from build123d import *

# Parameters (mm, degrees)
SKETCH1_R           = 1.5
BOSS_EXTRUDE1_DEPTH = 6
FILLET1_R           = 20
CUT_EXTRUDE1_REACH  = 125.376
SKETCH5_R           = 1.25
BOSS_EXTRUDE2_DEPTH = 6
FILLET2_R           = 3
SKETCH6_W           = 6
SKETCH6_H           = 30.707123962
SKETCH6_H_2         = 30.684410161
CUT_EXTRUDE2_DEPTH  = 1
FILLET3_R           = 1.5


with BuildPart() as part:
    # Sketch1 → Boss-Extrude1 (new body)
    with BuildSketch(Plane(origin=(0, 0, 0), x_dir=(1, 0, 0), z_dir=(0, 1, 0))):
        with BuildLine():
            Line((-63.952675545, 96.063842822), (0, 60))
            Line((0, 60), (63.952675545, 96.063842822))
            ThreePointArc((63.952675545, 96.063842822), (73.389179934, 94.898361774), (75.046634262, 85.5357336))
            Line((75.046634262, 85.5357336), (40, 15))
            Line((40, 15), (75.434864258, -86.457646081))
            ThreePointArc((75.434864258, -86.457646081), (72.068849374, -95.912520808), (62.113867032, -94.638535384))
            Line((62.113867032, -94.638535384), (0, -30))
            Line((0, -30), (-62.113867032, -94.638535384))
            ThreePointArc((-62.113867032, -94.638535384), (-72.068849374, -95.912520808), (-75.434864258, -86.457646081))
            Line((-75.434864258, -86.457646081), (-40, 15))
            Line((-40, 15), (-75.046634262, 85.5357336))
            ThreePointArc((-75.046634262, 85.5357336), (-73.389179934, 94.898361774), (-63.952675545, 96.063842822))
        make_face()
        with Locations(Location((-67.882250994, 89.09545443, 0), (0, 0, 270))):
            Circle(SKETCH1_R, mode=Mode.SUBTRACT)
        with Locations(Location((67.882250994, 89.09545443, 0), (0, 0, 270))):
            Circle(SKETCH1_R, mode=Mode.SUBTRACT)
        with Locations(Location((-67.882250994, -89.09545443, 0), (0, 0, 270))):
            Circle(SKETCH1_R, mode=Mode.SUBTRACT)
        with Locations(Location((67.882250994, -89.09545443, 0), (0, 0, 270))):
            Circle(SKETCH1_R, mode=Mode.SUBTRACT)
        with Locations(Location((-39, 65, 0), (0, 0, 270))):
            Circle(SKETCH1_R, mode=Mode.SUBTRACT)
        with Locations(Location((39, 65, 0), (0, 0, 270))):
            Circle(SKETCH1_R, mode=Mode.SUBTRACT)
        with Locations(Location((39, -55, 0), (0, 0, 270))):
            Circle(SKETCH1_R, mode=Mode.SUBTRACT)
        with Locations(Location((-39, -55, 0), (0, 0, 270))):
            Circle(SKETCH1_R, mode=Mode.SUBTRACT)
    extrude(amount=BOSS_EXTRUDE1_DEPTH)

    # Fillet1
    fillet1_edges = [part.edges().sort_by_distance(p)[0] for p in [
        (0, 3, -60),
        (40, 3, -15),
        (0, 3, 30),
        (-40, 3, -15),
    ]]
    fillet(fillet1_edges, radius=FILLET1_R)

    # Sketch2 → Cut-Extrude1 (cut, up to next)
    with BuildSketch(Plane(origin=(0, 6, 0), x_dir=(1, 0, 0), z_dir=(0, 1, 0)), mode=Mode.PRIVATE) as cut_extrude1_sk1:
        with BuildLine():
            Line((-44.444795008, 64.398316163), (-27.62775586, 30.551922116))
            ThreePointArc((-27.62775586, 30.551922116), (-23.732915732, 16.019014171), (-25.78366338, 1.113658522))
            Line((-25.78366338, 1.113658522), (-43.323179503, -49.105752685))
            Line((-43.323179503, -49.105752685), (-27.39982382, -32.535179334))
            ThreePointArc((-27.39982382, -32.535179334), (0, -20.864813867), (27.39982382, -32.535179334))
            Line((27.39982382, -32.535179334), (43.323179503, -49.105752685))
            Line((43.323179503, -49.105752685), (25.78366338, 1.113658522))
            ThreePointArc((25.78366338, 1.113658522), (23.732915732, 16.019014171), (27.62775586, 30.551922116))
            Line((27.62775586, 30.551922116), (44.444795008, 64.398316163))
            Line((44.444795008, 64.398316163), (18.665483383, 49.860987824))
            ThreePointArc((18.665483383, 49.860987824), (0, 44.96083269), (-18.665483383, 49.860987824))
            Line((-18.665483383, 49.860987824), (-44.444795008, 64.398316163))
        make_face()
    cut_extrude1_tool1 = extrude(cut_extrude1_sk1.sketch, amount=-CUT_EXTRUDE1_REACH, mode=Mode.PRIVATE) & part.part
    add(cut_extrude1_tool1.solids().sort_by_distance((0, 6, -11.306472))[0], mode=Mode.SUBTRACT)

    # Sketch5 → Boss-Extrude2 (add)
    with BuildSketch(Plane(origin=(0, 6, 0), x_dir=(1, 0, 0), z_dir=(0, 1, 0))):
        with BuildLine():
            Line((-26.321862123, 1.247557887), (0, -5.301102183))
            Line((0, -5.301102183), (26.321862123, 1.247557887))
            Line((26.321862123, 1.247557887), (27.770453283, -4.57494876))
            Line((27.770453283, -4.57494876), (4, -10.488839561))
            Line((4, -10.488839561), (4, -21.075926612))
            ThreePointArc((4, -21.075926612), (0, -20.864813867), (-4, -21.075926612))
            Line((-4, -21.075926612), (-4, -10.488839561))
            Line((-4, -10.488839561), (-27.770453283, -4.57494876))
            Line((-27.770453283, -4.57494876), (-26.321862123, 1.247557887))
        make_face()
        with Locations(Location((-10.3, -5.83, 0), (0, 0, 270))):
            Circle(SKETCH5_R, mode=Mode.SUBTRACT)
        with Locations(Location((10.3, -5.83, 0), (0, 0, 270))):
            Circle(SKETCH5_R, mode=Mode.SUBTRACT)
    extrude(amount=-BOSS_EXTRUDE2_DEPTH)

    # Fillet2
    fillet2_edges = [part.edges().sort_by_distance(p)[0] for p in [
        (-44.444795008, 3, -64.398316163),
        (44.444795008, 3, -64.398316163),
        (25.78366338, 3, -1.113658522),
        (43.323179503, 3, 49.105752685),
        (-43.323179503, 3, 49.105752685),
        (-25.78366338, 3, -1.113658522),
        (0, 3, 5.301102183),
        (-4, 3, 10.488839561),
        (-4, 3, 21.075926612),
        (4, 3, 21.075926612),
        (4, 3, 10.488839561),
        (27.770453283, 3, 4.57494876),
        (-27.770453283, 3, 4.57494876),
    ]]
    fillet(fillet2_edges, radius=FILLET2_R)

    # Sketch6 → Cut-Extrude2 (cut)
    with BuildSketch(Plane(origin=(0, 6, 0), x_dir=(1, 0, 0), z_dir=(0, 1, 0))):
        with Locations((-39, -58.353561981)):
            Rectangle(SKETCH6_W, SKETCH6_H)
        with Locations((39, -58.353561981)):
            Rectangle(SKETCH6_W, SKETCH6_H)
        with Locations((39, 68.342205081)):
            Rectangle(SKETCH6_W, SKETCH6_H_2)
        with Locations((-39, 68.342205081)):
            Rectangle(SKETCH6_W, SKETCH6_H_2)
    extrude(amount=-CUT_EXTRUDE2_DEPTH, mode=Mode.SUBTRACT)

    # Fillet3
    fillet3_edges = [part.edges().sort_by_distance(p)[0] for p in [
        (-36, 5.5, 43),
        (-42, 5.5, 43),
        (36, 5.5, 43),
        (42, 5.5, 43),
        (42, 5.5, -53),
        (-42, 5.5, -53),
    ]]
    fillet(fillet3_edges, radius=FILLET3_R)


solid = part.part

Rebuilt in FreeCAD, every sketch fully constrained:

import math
import FreeCAD as App
import Part
import Sketcher

V = App.Vector
Q = App.Units.Quantity


def edges_at(feature, points):
    """Names of the edges that pass closest to the given points."""
    edges = feature.Shape.Edges
    near = lambda p: min(range(len(edges)), key=lambda i: edges[i].distToShape(Part.Vertex(*p))[0])
    return sorted({f"Edge{near(p) + 1}" for p in points})

doc = App.newDocument("Part")
body = doc.addObject("PartDesign::Body", "Body")

sketch1 = body.newObject("Sketcher::SketchObject", "Sketch")
sketch1.AttachmentSupport = (doc.getObject("XZ_Plane"), [""])
sketch1.MapMode = "FlatFace"
sketch1.addGeometry([
    Part.LineSegment(V(0, -60, 0), V(-64, -96.1, 0)),
    Part.ArcOfCircle(Part.Circle(V(-67.9, -89.1, 0), V(0, 0, 1), 8), math.radians(154), math.radians(299)),
    Part.LineSegment(V(-75, -85.5, 0), V(-40, -15, 0)),
    Part.LineSegment(V(-40, -15, 0), V(-75.4, 86.5, 0)),
    Part.ArcOfCircle(Part.Circle(V(-67.9, 89.1, 0), V(0, 0, 1), 8), math.radians(44), math.radians(199)),
    Part.LineSegment(V(-62.1, 94.6, 0), V(0, 30, 0)),
    Part.LineSegment(V(0, 30, 0), V(62.1, 94.6, 0)),
    Part.ArcOfCircle(Part.Circle(V(67.9, 89.1, 0), V(0, 0, 1), 8), math.radians(-19), math.radians(136)),
    Part.LineSegment(V(75.4, 86.5, 0), V(40, -15, 0)),
    Part.LineSegment(V(40, -15, 0), V(75, -85.5, 0)),
    Part.ArcOfCircle(Part.Circle(V(67.9, -89.1, 0), V(0, 0, 1), 8), math.radians(-119), math.radians(26)),
    Part.LineSegment(V(64, -96.1, 0), V(0, -60, 0)),
    Part.Circle(V(67.9, 89.1, 0), V(0, 0, 1), 1.5),
    Part.Circle(V(39, 55, 0), V(0, 0, 1), 1.5),
    Part.Circle(V(-67.9, 89.1, 0), V(0, 0, 1), 1.5),
    Part.Circle(V(-39, 55, 0), V(0, 0, 1), 1.5),
    Part.Circle(V(39, -65, 0), V(0, 0, 1), 1.5),
    Part.Circle(V(67.9, -89.1, 0), V(0, 0, 1), 1.5),
    Part.Circle(V(-39, -65, 0), V(0, 0, 1), 1.5),
    Part.Circle(V(-67.9, -89.1, 0), V(0, 0, 1), 1.5),
], False)
sketch1.addConstraint([
    Sketcher.Constraint("Tangent", 0, 2, 1, 2),
    Sketcher.Constraint("Tangent", 1, 1, 2, 1),
    Sketcher.Constraint("Coincident", 2, 2, 3, 1),
    Sketcher.Constraint("Tangent", 3, 2, 4, 2),
    Sketcher.Constraint("Tangent", 4, 1, 5, 1),
    Sketcher.Constraint("Coincident", 5, 2, 6, 1),
    Sketcher.Constraint("Tangent", 6, 2, 7, 2),
    Sketcher.Constraint("Tangent", 7, 1, 8, 1),
    Sketcher.Constraint("Coincident", 8, 2, 9, 1),
    Sketcher.Constraint("Tangent", 9, 2, 10, 2),
    Sketcher.Constraint("Tangent", 10, 1, 11, 1),
    Sketcher.Constraint("Coincident", 11, 2, 0, 1),
    Sketcher.Constraint("Coincident", 12, 3, 7, 3),
    Sketcher.Constraint("Coincident", 14, 3, 4, 3),
    Sketcher.Constraint("Coincident", 17, 3, 10, 3),
    Sketcher.Constraint("Coincident", 19, 3, 1, 3),
    Sketcher.Constraint("Equal", 1, 4),
    Sketcher.Constraint("Equal", 4, 7),
    Sketcher.Constraint("Equal", 7, 10),
    Sketcher.Constraint("Equal", 12, 13),
    Sketcher.Constraint("Equal", 13, 14),
    Sketcher.Constraint("Equal", 14, 15),
    Sketcher.Constraint("Equal", 15, 16),
    Sketcher.Constraint("Equal", 16, 17),
    Sketcher.Constraint("Equal", 17, 18),
    Sketcher.Constraint("Equal", 18, 19),
    Sketcher.Constraint("Symmetric", 1, 3, 7, 3, -1, 1),
    Sketcher.Constraint("Symmetric", 4, 3, 10, 3, -1, 1),
    Sketcher.Constraint("Symmetric", 4, 3, 7, 3, -2),
    Sketcher.Constraint("Symmetric", 13, 3, 15, 3, -2),
    Sketcher.Constraint("Symmetric", 16, 3, 18, 3, -2),
    Sketcher.Constraint("Symmetric", 2, 2, 8, 2, -2),
    Sketcher.Constraint("PointOnObject", 5, 2, -2),
    Sketcher.Constraint("PointOnObject", 11, 2, -2),
    Sketcher.Constraint("Vertical", 13, 3, 16, 3),
    Sketcher.Constraint("Diameter", 12, Q("3 mm")),
    Sketcher.Constraint("Radius", 1, Q("8 mm")),
    Sketcher.Constraint("DistanceX", -1, 1, 13, 3, Q("39 mm")),
    Sketcher.Constraint("DistanceY", -1, 1, 13, 3, Q("55 mm")),
    Sketcher.Constraint("DistanceY", 16, 3, -1, 1, Q("65 mm")),
    Sketcher.Constraint("DistanceX", 2, 2, -1, 1, Q("40 mm")),
    Sketcher.Constraint("DistanceY", 2, 2, -1, 1, Q("15 mm")),
    Sketcher.Constraint("DistanceY", -1, 1, 5, 2, Q("30 mm")),
    Sketcher.Constraint("DistanceY", 11, 2, -1, 1, Q("60 mm")),
    Sketcher.Constraint("DistanceX", 4, 3, 7, 3, Q("135.764502 mm")),
    Sketcher.Constraint("Distance", 5, Q("89.645261 mm")),
])
pad1 = body.newObject("PartDesign::Pad", "Pad")
pad1.Profile = sketch1
pad1.Length = 6
pad1.Reversed = True
doc.recompute()

fillet = body.newObject("PartDesign::Fillet", "Fillet")
fillet.Base = (pad1, edges_at(pad1, [
    (0, 3, -60),
    (40, 3, -15),
    (0, 3, 30),
    (-40, 3, -15),
]))
fillet.Radius = 20

sketch2 = body.newObject("Sketcher::SketchObject", "Sketch001")
sketch2.AttachmentSupport = (doc.getObject("XZ_Plane"), [""])
sketch2.MapMode = "FlatFace"
sketch2.AttachmentOffset = App.Placement(V(0, 0, -6), App.Rotation())
sketch2.addGeometry([
    Part.LineSegment(V(-44, -64, 0), V(-28, -31, 0)),
    Part.ArcOfCircle(Part.Circle(V(-62, -14, 0), V(0, 0, 1), 38), math.radians(-26), math.radians(19)),
    Part.LineSegment(V(-26, -1, 0), V(-43, 49, 0)),
    Part.LineSegment(V(-43, 49, 0), V(-27, 33, 0)),
    Part.ArcOfCircle(Part.Circle(V(0, 59, 0), V(0, 0, 1), 38), math.radians(-136), math.radians(-44)),
    Part.LineSegment(V(27, 33, 0), V(43, 49, 0)),
    Part.LineSegment(V(43, 49, 0), V(26, -1, 0)),
    Part.ArcOfCircle(Part.Circle(V(62, -14, 0), V(0, 0, 1), 38), math.radians(161), math.radians(206)),
    Part.LineSegment(V(28, -31, 0), V(44, -64, 0)),
    Part.LineSegment(V(44, -64, 0), V(19, -50, 0)),
    Part.ArcOfCircle(Part.Circle(V(0, -83, 0), V(0, 0, 1), 38), math.radians(61), math.radians(119)),
    Part.LineSegment(V(-19, -50, 0), V(-44, -64, 0)),
], False)
sketch2.addConstraint([
    Sketcher.Constraint("Tangent", 0, 2, 1, 1),
    Sketcher.Constraint("Tangent", 1, 2, 2, 1),
    Sketcher.Constraint("Coincident", 2, 2, 3, 1),
    Sketcher.Constraint("Tangent", 3, 2, 4, 1),
    Sketcher.Constraint("Tangent", 4, 2, 5, 1),
    Sketcher.Constraint("Coincident", 5, 2, 6, 1),
    Sketcher.Constraint("Tangent", 6, 2, 7, 1),
    Sketcher.Constraint("Tangent", 7, 2, 8, 1),
    Sketcher.Constraint("Coincident", 8, 2, 9, 1),
    Sketcher.Constraint("Tangent", 9, 2, 10, 1),
    Sketcher.Constraint("Tangent", 10, 2, 11, 1),
    Sketcher.Constraint("Coincident", 11, 2, 0, 1),
    Sketcher.Constraint("Equal", 1, 4),
    Sketcher.Constraint("Equal", 4, 7),
    Sketcher.Constraint("Equal", 7, 10),
    Sketcher.Constraint("Symmetric", 1, 3, 7, 3, -2),
    Sketcher.Constraint("Symmetric", 3, 2, 4, 2, -2),
    Sketcher.Constraint("Symmetric", 9, 2, 10, 2, -2),
    Sketcher.Constraint("Horizontal", 2, 2, 5, 2),
    Sketcher.Constraint("Horizontal", 0, 2, 7, 2),
    Sketcher.Constraint("Radius", 1, Q("38 mm")),
    Sketcher.Constraint("DistanceY", 1, 3, 2, 2, Q("62.749001 mm")),
    Sketcher.Constraint("DistanceY", 0, 2, 3, 2, Q("63.087101 mm")),
    Sketcher.Constraint("Distance", 2, Q("53.194209 mm")),
    Sketcher.Constraint("DistanceY", 1, 3, -1, 1, Q("13.643248 mm")),
    Sketcher.Constraint("DistanceX", 2, 2, -1, 1, Q("43.32318 mm")),
    Sketcher.Constraint("DistanceY", -1, 1, 3, 2, Q("32.535179 mm")),
    Sketcher.Constraint("DistanceY", 10, 3, 0, 2, Q("52.408911 mm")),
    Sketcher.Constraint("DistanceX", 7, 2, 8, 2, Q("16.817039 mm")),
])
pocket1 = body.newObject("PartDesign::Pocket", "Pocket")
pocket1.Profile = sketch2
pocket1.Type = "UpToFirst"
pocket1.Reversed = True

sketch3 = body.newObject("Sketcher::SketchObject", "Sketch002")
sketch3.AttachmentSupport = (doc.getObject("XZ_Plane"), [""])
sketch3.MapMode = "FlatFace"
sketch3.AttachmentOffset = App.Placement(V(0, 0, -6), App.Rotation())
sketch3.addGeometry([
    Part.LineSegment(V(0, 5.3, 0), V(-26.3, -1.2, 0)),
    Part.LineSegment(V(-26.3, -1.2, 0), V(-27.8, 4.6, 0)),
    Part.LineSegment(V(-27.8, 4.6, 0), V(-4, 10.5, 0)),
    Part.LineSegment(V(-4, 10.5, 0), V(-4, 21.1, 0)),
    Part.ArcOfCircle(Part.Circle(V(0, 58.9, 0), V(0, 0, 1), 38), math.radians(-96.04), math.radians(-83.96)),
    Part.LineSegment(V(4, 21.1, 0), V(4, 10.5, 0)),
    Part.LineSegment(V(4, 10.5, 0), V(27.8, 4.6, 0)),
    Part.LineSegment(V(27.8, 4.6, 0), V(26.3, -1.2, 0)),
    Part.LineSegment(V(26.3, -1.2, 0), V(0, 5.3, 0)),
    Part.Circle(V(10.3, 5.8, 0), V(0, 0, 1), 1.2),
    Part.Circle(V(-10.3, 5.8, 0), V(0, 0, 1), 1.2),
], False)
sketch3.addConstraint([
    Sketcher.Constraint("Coincident", 0, 2, 1, 1),
    Sketcher.Constraint("Coincident", 1, 2, 2, 1),
    Sketcher.Constraint("Coincident", 2, 2, 3, 1),
    Sketcher.Constraint("Coincident", 3, 2, 4, 1),
    Sketcher.Constraint("Coincident", 4, 2, 5, 1),
    Sketcher.Constraint("Coincident", 5, 2, 6, 1),
    Sketcher.Constraint("Coincident", 6, 2, 7, 1),
    Sketcher.Constraint("Coincident", 7, 2, 8, 1),
    Sketcher.Constraint("Coincident", 8, 2, 0, 1),
    Sketcher.Constraint("Vertical", 3),
    Sketcher.Constraint("Vertical", 5),
    Sketcher.Constraint("Equal", 9, 10),
    Sketcher.Constraint("Symmetric", 9, 3, 10, 3, -2),
    Sketcher.Constraint("Symmetric", 3, 2, 4, 2, -2),
    Sketcher.Constraint("Symmetric", 1, 2, 6, 2, -2),
    Sketcher.Constraint("Symmetric", 0, 2, 7, 2, -2),
    Sketcher.Constraint("PointOnObject", 8, 2, -2),
    Sketcher.Constraint("Perpendicular", 0, 1),
    Sketcher.Constraint("Perpendicular", 1, 2),
    Sketcher.Constraint("Perpendicular", 6, 7),
    Sketcher.Constraint("Radius", 4, Q("38 mm")),
    Sketcher.Constraint("Diameter", 9, Q("2.5 mm")),
    Sketcher.Constraint("Distance", 1, Q("6 mm")),
    Sketcher.Constraint("DistanceX", 2, 2, -1, 1, Q("4 mm")),
    Sketcher.Constraint("DistanceX", -1, 1, 9, 3, Q("10.3 mm")),
    Sketcher.Constraint("DistanceY", -1, 1, 9, 3, Q("5.83 mm")),
    Sketcher.Constraint("Distance", 0, Q("27.124258 mm")),
    Sketcher.Constraint("DistanceY", 3, 1, 3, 2, Q("10.587087 mm")),
    Sketcher.Constraint("DistanceY", -1, 1, 1, 2, Q("4.574949 mm")),
    Sketcher.Constraint("DistanceY", -1, 1, 2, 2, Q("10.48884 mm")),
])
pad2 = body.newObject("PartDesign::Pad", "Pad001")
pad2.Profile = sketch3
pad2.Length = 6
doc.recompute()

fillet2 = body.newObject("PartDesign::Fillet", "Fillet001")
fillet2.Base = (pad2, edges_at(pad2, [
    (-44.445, 3, -64.398),
    (44.445, 3, -64.398),
    (25.784, 3, -1.114),
    (43.323, 3, 49.106),
    (-43.323, 3, 49.106),
    (-25.784, 3, -1.114),
    (0, 3, 5.301),
    (-4, 3, 10.489),
    (-4, 3, 21.076),
    (4, 3, 21.076),
    (4, 3, 10.489),
    (27.77, 3, 4.575),
    (-27.77, 3, 4.575),
]))
fillet2.Radius = 3

sketch4 = body.newObject("Sketcher::SketchObject", "Sketch003")
sketch4.AttachmentSupport = (doc.getObject("XZ_Plane"), [""])
sketch4.MapMode = "FlatFace"
sketch4.AttachmentOffset = App.Placement(V(0, 0, -6), App.Rotation())
sketch4.addGeometry([
    Part.LineSegment(V(-42, 43, 0), V(-42, 74, 0)),
    Part.LineSegment(V(-42, 74, 0), V(-36, 74, 0)),
    Part.LineSegment(V(-36, 74, 0), V(-36, 43, 0)),
    Part.LineSegment(V(-36, 43, 0), V(-42, 43, 0)),
    Part.LineSegment(V(36, 43, 0), V(36, 74, 0)),
    Part.LineSegment(V(36, 74, 0), V(42, 74, 0)),
    Part.LineSegment(V(42, 74, 0), V(42, 43, 0)),
    Part.LineSegment(V(42, 43, 0), V(36, 43, 0)),
    Part.LineSegment(V(36, -84, 0), V(36, -53, 0)),
    Part.LineSegment(V(36, -53, 0), V(42, -53, 0)),
    Part.LineSegment(V(42, -53, 0), V(42, -84, 0)),
    Part.LineSegment(V(42, -84, 0), V(36, -84, 0)),
    Part.LineSegment(V(-42, -84, 0), V(-42, -53, 0)),
    Part.LineSegment(V(-42, -53, 0), V(-36, -53, 0)),
    Part.LineSegment(V(-36, -53, 0), V(-36, -84, 0)),
    Part.LineSegment(V(-36, -84, 0), V(-42, -84, 0)),
], False)
sketch4.addConstraint([
    Sketcher.Constraint("Coincident", 0, 2, 1, 1),
    Sketcher.Constraint("Coincident", 1, 2, 2, 1),
    Sketcher.Constraint("Coincident", 2, 2, 3, 1),
    Sketcher.Constraint("Coincident", 3, 2, 0, 1),
    Sketcher.Constraint("Coincident", 4, 2, 5, 1),
    Sketcher.Constraint("Coincident", 5, 2, 6, 1),
    Sketcher.Constraint("Coincident", 6, 2, 7, 1),
    Sketcher.Constraint("Coincident", 7, 2, 4, 1),
    Sketcher.Constraint("Coincident", 8, 2, 9, 1),
    Sketcher.Constraint("Coincident", 9, 2, 10, 1),
    Sketcher.Constraint("Coincident", 10, 2, 11, 1),
    Sketcher.Constraint("Coincident", 11, 2, 8, 1),
    Sketcher.Constraint("Coincident", 12, 2, 13, 1),
    Sketcher.Constraint("Coincident", 13, 2, 14, 1),
    Sketcher.Constraint("Coincident", 14, 2, 15, 1),
    Sketcher.Constraint("Coincident", 15, 2, 12, 1),
    Sketcher.Constraint("Vertical", 0),
    Sketcher.Constraint("Horizontal", 1),
    Sketcher.Constraint("Vertical", 2),
    Sketcher.Constraint("Horizontal", 3),
    Sketcher.Constraint("Vertical", 4),
    Sketcher.Constraint("Horizontal", 5),
    Sketcher.Constraint("Vertical", 6),
    Sketcher.Constraint("Horizontal", 7),
    Sketcher.Constraint("Vertical", 8),
    Sketcher.Constraint("Horizontal", 9),
    Sketcher.Constraint("Vertical", 10),
    Sketcher.Constraint("Horizontal", 11),
    Sketcher.Constraint("Vertical", 12),
    Sketcher.Constraint("Horizontal", 13),
    Sketcher.Constraint("Vertical", 14),
    Sketcher.Constraint("Horizontal", 15),
    Sketcher.Constraint("Symmetric", 1, 2, 4, 2, -2),
    Sketcher.Constraint("Symmetric", 3, 2, 6, 2, -2),
    Sketcher.Constraint("Symmetric", 9, 2, 12, 2, -2),
    Sketcher.Constraint("Symmetric", 11, 2, 14, 2, -2),
    Sketcher.Constraint("Vertical", 7, 2, 8, 2),
    Sketcher.Constraint("Vertical", 6, 2, 9, 2),
    Sketcher.Constraint("DistanceX", 1, 1, 1, 2, Q("6 mm")),
    Sketcher.Constraint("DistanceX", 0, 2, -1, 1, Q("42 mm")),
    Sketcher.Constraint("DistanceY", -1, 1, 2, 2, Q("43 mm")),
    Sketcher.Constraint("DistanceY", 8, 2, -1, 1, Q("53 mm")),
    Sketcher.Constraint("DistanceY", 8, 1, 8, 2, Q("30.68441 mm")),
    Sketcher.Constraint("DistanceY", 0, 1, 0, 2, Q("30.707124 mm")),
])
pocket2 = body.newObject("PartDesign::Pocket", "Pocket001")
pocket2.Profile = sketch4
pocket2.Length = 1
pocket2.Reversed = True
doc.recompute()

fillet3 = body.newObject("PartDesign::Fillet", "Fillet002")
fillet3.Base = (pocket2, edges_at(pocket2, [
    (-36, 5.5, 43),
    (-42, 5.5, 43),
    (36, 5.5, 43),
    (42, 5.5, 43),
    (42, 5.5, -53),
    (-42, 5.5, -53),
]))
fillet3.Radius = 1.5

doc.recompute()
